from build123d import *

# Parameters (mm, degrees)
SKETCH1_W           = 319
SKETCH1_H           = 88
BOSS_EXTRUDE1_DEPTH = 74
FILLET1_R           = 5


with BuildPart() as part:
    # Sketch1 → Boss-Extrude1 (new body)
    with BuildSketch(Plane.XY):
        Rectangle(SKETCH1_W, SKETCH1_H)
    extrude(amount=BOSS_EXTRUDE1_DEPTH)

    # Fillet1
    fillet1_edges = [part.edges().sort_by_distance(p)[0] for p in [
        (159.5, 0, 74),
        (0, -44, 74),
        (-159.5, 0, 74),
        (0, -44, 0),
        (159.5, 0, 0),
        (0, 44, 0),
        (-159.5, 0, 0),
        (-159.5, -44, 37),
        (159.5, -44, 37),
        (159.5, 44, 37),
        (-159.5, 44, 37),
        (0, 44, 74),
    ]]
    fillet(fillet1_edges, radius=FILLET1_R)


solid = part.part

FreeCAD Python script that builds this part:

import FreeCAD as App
import Part
import Sketcher
from FreeCAD import Vector
Q = App.Units.Quantity

doc = App.newDocument("Part")
body = doc.addObject("PartDesign::Body", "Body")

sketch1 = doc.addObject("Sketcher::SketchObject", "Sketch")
body.addObject(sketch1)
sketch1.AttachmentSupport = (doc.XY_Plane, [""])
sketch1.MapMode = "FlatFace"
sketch1.addGeometry([
    Part.LineSegment(Vector(-160, 44, 0), Vector(-160, -44, 0)),
    Part.LineSegment(Vector(-160, -44, 0), Vector(160, -44, 0)),
    Part.LineSegment(Vector(160, -44, 0), Vector(160, 44, 0)),
    Part.LineSegment(Vector(160, 44, 0), Vector(-160, 44, 0)),
], False)
sketch1.addConstraint([
    Sketcher.Constraint("Coincident", 0, 2, 1, 1),
    Sketcher.Constraint("Coincident", 1, 2, 2, 1),
    Sketcher.Constraint("Coincident", 2, 2, 3, 1),
    Sketcher.Constraint("Coincident", 3, 2, 0, 1),
    Sketcher.Constraint("Vertical", 0),
    Sketcher.Constraint("Horizontal", 1),
    Sketcher.Constraint("Vertical", 2),
    Sketcher.Constraint("Horizontal", 3),
    Sketcher.Constraint("Symmetric", 0, 2, 2, 2, -1, 1),
    Sketcher.Constraint("DistanceX", 1, 1, 1, 2, Q("319 mm")),
    Sketcher.Constraint("DistanceY", 0, 2, 0, 1, Q("88 mm")),
])
pad1 = doc.addObject("PartDesign::Pad", "Pad")
body.addObject(pad1)
pad1.Profile = sketch1
pad1.Length = 74
doc.recompute()

fillet = doc.addObject("PartDesign::Fillet", "Fillet")
body.addObject(fillet)
fillet.Base = (pad1, ["Edge1"])
fillet.UseAllEdges = True
fillet.Radius = 5

doc.recompute()
